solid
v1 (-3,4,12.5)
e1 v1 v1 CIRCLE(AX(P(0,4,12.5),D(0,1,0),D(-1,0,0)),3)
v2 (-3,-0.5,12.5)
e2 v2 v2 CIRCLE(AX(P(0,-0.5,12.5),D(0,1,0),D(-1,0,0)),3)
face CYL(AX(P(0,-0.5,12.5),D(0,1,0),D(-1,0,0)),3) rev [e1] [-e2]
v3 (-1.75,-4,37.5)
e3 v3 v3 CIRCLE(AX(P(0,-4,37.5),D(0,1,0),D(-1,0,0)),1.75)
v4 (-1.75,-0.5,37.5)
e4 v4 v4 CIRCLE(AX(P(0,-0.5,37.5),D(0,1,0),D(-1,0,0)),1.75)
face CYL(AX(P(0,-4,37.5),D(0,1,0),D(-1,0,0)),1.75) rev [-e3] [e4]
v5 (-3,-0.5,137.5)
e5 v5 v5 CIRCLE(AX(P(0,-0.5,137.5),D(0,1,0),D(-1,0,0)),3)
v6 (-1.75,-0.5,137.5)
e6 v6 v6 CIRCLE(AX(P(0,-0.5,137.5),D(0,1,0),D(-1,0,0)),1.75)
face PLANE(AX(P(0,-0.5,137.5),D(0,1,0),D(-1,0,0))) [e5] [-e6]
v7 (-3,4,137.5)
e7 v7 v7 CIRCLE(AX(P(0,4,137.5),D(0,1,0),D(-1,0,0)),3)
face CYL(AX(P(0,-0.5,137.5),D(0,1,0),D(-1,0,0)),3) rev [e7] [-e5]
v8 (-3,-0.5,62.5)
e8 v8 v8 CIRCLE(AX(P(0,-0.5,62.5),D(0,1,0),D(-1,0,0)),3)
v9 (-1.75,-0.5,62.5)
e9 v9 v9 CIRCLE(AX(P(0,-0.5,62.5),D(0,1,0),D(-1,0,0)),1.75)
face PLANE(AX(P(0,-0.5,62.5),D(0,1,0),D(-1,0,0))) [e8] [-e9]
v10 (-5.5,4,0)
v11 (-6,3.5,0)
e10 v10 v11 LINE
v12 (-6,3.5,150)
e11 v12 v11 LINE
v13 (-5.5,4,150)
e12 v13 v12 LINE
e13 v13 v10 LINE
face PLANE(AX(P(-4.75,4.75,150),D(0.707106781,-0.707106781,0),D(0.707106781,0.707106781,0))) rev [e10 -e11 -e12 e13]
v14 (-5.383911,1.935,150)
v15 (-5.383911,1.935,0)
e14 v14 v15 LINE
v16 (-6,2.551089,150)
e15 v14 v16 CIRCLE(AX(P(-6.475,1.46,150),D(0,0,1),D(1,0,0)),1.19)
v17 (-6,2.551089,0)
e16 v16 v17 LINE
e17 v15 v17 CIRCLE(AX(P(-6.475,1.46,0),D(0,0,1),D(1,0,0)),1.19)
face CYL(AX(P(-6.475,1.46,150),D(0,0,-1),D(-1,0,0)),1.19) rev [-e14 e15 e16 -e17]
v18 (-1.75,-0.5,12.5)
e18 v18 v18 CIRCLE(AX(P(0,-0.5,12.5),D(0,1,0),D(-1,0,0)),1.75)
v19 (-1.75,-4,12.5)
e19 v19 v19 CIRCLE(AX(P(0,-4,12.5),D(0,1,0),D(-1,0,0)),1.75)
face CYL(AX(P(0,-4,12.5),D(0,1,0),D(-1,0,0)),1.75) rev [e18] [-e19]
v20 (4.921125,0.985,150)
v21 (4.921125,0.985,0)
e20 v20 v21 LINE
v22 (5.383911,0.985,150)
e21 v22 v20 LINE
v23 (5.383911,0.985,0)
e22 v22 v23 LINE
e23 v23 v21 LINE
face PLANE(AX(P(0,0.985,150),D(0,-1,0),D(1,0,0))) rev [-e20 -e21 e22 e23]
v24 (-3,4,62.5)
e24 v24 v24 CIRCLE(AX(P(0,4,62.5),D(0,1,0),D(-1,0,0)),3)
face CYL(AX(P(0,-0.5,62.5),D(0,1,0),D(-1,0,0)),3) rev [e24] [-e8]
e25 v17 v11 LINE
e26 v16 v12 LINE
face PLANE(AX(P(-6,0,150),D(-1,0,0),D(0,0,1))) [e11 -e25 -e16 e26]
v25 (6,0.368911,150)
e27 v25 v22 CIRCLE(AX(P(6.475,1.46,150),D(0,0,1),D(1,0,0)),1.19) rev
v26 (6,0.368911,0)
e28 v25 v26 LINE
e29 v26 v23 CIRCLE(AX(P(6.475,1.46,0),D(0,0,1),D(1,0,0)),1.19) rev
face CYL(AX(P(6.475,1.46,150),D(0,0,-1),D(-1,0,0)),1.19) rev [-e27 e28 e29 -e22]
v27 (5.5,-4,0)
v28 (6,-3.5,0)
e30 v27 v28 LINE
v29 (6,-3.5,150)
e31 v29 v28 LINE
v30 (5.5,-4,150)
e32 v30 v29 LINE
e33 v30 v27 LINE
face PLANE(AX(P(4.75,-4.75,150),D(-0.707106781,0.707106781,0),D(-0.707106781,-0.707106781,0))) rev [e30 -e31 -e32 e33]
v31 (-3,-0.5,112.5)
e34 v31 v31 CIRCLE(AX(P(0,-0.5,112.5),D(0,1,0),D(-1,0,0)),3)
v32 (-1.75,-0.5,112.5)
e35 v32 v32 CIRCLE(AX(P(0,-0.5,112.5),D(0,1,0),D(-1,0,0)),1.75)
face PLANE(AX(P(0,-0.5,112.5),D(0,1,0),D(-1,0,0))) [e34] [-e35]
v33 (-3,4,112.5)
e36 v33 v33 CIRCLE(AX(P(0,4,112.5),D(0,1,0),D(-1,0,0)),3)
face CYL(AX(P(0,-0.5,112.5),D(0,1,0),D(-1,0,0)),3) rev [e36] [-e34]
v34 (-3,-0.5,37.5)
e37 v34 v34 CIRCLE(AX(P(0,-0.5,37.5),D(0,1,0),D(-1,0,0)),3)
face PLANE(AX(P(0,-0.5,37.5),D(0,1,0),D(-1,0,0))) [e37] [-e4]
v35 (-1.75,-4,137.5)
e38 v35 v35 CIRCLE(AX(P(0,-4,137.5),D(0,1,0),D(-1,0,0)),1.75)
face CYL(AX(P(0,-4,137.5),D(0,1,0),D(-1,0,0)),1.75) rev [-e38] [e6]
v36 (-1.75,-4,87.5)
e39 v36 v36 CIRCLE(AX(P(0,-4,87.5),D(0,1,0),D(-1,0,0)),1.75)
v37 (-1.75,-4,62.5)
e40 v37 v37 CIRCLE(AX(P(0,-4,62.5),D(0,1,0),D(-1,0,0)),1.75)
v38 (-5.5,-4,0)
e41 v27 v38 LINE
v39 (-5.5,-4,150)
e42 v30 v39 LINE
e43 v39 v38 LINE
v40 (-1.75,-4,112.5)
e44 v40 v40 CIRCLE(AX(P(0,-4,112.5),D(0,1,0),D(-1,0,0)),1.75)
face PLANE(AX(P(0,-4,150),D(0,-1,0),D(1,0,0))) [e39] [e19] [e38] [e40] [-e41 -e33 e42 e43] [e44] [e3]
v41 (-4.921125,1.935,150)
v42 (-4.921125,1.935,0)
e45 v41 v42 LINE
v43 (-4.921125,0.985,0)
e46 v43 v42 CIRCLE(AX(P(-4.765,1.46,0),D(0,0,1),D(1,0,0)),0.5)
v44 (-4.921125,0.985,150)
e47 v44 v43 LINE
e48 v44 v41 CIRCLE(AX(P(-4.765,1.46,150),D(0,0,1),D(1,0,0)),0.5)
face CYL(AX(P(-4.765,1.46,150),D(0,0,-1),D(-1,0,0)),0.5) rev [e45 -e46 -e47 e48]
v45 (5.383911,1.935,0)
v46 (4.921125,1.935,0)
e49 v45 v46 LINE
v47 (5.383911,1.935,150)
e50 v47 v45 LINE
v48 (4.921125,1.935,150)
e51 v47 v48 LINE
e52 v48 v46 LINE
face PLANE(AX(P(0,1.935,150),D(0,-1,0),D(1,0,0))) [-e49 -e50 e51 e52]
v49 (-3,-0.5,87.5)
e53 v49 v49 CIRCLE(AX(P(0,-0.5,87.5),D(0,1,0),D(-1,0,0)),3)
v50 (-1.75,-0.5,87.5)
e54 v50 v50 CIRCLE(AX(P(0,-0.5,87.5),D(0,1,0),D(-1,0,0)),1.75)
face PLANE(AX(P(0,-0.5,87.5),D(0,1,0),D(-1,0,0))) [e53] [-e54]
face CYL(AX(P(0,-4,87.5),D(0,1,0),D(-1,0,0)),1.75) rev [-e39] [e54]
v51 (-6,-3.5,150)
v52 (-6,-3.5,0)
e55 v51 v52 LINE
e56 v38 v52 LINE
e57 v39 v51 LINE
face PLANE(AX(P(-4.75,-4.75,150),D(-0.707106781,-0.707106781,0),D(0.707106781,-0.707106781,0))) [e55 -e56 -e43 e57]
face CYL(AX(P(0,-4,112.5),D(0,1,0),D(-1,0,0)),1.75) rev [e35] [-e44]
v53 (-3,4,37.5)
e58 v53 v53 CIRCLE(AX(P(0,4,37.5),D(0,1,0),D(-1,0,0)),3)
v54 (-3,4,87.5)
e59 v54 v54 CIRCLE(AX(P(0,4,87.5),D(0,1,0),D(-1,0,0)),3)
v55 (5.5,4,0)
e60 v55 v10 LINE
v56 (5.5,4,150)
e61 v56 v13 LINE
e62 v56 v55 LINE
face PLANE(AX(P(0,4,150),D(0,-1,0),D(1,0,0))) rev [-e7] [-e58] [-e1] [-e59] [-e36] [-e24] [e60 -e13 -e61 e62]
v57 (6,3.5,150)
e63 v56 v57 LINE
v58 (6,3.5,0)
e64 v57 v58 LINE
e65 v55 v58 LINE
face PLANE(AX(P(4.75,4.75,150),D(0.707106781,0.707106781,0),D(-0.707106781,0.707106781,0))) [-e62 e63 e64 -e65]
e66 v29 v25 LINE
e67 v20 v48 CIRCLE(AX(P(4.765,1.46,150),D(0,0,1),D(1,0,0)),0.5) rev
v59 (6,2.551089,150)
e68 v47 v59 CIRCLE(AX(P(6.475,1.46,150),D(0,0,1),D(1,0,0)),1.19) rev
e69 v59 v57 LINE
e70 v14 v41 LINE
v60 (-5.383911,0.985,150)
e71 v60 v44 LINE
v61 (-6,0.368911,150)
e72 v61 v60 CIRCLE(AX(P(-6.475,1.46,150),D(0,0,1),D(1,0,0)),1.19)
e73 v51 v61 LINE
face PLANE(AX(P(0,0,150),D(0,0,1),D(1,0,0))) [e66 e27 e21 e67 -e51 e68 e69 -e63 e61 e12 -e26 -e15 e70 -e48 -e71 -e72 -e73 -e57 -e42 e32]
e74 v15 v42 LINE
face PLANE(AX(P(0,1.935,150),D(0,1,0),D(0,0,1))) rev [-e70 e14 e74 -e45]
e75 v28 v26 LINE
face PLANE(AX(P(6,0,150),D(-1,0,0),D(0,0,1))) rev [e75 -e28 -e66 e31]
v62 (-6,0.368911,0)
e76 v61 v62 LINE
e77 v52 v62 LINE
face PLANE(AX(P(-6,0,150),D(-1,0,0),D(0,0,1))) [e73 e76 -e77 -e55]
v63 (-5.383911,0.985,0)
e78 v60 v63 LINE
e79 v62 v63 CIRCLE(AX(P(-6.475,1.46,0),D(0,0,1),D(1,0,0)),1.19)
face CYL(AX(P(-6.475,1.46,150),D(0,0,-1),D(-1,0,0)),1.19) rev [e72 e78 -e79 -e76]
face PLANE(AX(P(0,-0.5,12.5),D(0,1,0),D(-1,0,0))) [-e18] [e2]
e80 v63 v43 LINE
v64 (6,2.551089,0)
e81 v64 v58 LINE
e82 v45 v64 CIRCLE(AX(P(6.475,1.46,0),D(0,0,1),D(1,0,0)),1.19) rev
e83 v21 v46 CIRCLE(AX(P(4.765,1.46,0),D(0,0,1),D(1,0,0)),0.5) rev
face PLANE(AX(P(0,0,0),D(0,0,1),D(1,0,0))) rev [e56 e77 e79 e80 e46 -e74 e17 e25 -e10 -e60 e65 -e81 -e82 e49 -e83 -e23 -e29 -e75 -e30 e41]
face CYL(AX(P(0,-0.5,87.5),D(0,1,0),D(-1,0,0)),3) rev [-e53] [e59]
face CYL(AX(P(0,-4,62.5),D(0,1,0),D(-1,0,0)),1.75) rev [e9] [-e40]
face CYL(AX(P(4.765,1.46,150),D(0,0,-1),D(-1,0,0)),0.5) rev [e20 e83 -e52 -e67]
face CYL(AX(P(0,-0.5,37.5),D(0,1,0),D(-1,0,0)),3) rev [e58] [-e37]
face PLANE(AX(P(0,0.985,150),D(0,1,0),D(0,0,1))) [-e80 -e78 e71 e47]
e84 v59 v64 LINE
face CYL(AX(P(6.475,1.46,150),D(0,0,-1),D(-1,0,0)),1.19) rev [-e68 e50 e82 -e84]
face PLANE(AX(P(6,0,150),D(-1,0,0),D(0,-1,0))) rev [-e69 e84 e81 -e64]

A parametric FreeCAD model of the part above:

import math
import FreeCAD as App
import Part
import Sketcher
from FreeCAD import Vector
Q = App.Units.Quantity

doc = App.newDocument("Part")
params = doc.addObject("Spreadsheet::Sheet", "Params")
for row, (alias, value) in enumerate([
    ("sketch1_radius", "0.5 mm"),
    ("sketch1_width", "11 mm"),
    ("sketch1_radius2", "1.19 mm"),
    ("pad1_length", "150 mm"),
    ("sketch2_diameter", "6 mm"),
    ("pocket1_length", "4.5 mm"),
    ("sketch3_diameter", "3.5 mm"),
    ("linearpattern_pitch", "25 mm"),
], start=1):
    params.set(f"A{row}", alias)
    params.set(f"B{row}", "=" + value)
    params.setAlias(f"B{row}", alias)

body = doc.addObject("PartDesign::Body", "Body")

# Sketch on XY plane
sketch1 = doc.addObject("Sketcher::SketchObject", "Sketch")
body.addObject(sketch1)
sketch1.AttachmentSupport = (doc.XY_Plane, [""])
sketch1.MapMode = "FlatFace"
sketch1.addGeometry(Part.LineSegment(Vector(6, -3.5, 0), Vector(6, 0.368911, 0)), False)
sketch1.addGeometry(Part.ArcOfCircle(Part.Circle(Vector(6.475, 1.46, 0), Vector(0, 0, 1), 1.19), math.radians(-156.474345), math.radians(-113.525655)), False)
sketch1.addGeometry(Part.LineSegment(Vector(5.383911, 0.985, 0), Vector(4.921125, 0.985, 0)), False)
sketch1.addGeometry(Part.ArcOfCircle(Part.Circle(Vector(4.765, 1.46, 0), Vector(0, 0, 1), 0.5), math.radians(71.805128), math.radians(288.194872)), False)
sketch1.addGeometry(Part.LineSegment(Vector(4.921125, 1.935, 0), Vector(5.383911, 1.935, 0)), False)
sketch1.addGeometry(Part.ArcOfCircle(Part.Circle(Vector(6.475, 1.46, 0), Vector(0, 0, 1), 1.19), math.radians(113.525655), math.radians(156.474345)), False)
sketch1.addGeometry(Part.LineSegment(Vector(6, 2.551089, 0), Vector(6, 3.5, 0)), False)
sketch1.addGeometry(Part.LineSegment(Vector(6, 3.5, 0), Vector(5.5, 4, 0)), False)
sketch1.addGeometry(Part.LineSegment(Vector(5.5, 4, 0), Vector(-5.5, 4, 0)), False)
sketch1.addGeometry(Part.LineSegment(Vector(-5.5, 4, 0), Vector(-6, 3.5, 0)), False)
sketch1.addGeometry(Part.LineSegment(Vector(-6, 3.5, 0), Vector(-6, 2.551089, 0)), False)
sketch1.addGeometry(Part.ArcOfCircle(Part.Circle(Vector(-6.475, 1.46, 0), Vector(0, 0, 1), 1.19), math.radians(23.525655), math.radians(66.474345)), False)
sketch1.addGeometry(Part.LineSegment(Vector(-5.383911, 1.935, 0), Vector(-4.921125, 1.935, 0)), False)
sketch1.addGeometry(Part.ArcOfCircle(Part.Circle(Vector(-4.765, 1.46, 0), Vector(0, 0, 1), 0.5), math.radians(-108.194872), math.radians(108.194872)), False)
sketch1.addGeometry(Part.LineSegment(Vector(-4.921125, 0.985, 0), Vector(-5.383911, 0.985, 0)), False)
sketch1.addGeometry(Part.ArcOfCircle(Part.Circle(Vector(-6.475, 1.46, 0), Vector(0, 0, 1), 1.19), math.radians(-66.474345), math.radians(-23.525655)), False)
sketch1.addGeometry(Part.LineSegment(Vector(-6, 0.368911, 0), Vector(-6, -3.5, 0)), False)
sketch1.addGeometry(Part.LineSegment(Vector(-6, -3.5, 0), Vector(-5.5, -4, 0)), False)
sketch1.addGeometry(Part.LineSegment(Vector(-5.5, -4, 0), Vector(5.5, -4, 0)), False)
sketch1.addGeometry(Part.LineSegment(Vector(5.5, -4, 0), Vector(6, -3.5, 0)), False)
sketch1.addConstraint(Sketcher.Constraint("Coincident", 0, 2, 1, 2))
sketch1.addConstraint(Sketcher.Constraint("Coincident", 1, 1, 2, 1))
sketch1.addConstraint(Sketcher.Constraint("Coincident", 2, 2, 3, 2))
sketch1.addConstraint(Sketcher.Constraint("Coincident", 3, 1, 4, 1))
sketch1.addConstraint(Sketcher.Constraint("Coincident", 4, 2, 5, 2))
sketch1.addConstraint(Sketcher.Constraint("Coincident", 5, 1, 6, 1))
sketch1.addConstraint(Sketcher.Constraint("Coincident", 6, 2, 7, 1))
sketch1.addConstraint(Sketcher.Constraint("Coincident", 7, 2, 8, 1))
sketch1.addConstraint(Sketcher.Constraint("Coincident", 8, 2, 9, 1))
sketch1.addConstraint(Sketcher.Constraint("Coincident", 9, 2, 10, 1))
sketch1.addConstraint(Sketcher.Constraint("Coincident", 10, 2, 11, 2))
sketch1.addConstraint(Sketcher.Constraint("Coincident", 11, 1, 12, 1))
sketch1.addConstraint(Sketcher.Constraint("Coincident", 12, 2, 13, 2))
sketch1.addConstraint(Sketcher.Constraint("Coincident", 13, 1, 14, 1))
sketch1.addConstraint(Sketcher.Constraint("Coincident", 14, 2, 15, 2))
sketch1.addConstraint(Sketcher.Constraint("Coincident", 15, 1, 16, 1))
sketch1.addConstraint(Sketcher.Constraint("Coincident", 16, 2, 17, 1))
sketch1.addConstraint(Sketcher.Constraint("Coincident", 17, 2, 18, 1))
sketch1.addConstraint(Sketcher.Constraint("Coincident", 18, 2, 19, 1))
sketch1.addConstraint(Sketcher.Constraint("Coincident", 19, 2, 0, 1))
sketch1.addConstraint(Sketcher.Constraint("Vertical", 0))
sketch1.addConstraint(Sketcher.Constraint("Horizontal", 2))
sketch1.addConstraint(Sketcher.Constraint("Horizontal", 4))
sketch1.addConstraint(Sketcher.Constraint("Vertical", 6))
sketch1.addConstraint(Sketcher.Constraint("Horizontal", 8))
sketch1.addConstraint(Sketcher.Constraint("Vertical", 10))
sketch1.addConstraint(Sketcher.Constraint("Horizontal", 12))
sketch1.addConstraint(Sketcher.Constraint("Horizontal", 14))
sketch1.addConstraint(Sketcher.Constraint("Vertical", 16))
sketch1.addConstraint(Sketcher.Constraint("Horizontal", 18))
sketch1.addConstraint(Sketcher.Constraint("Coincident", 5, 3, 1, 3))
sketch1.addConstraint(Sketcher.Constraint("Coincident", 15, 3, 11, 3))
sketch1.addConstraint(Sketcher.Constraint("Equal", 1, 5))
sketch1.addConstraint(Sketcher.Constraint("Equal", 5, 11))
sketch1.addConstraint(Sketcher.Constraint("Equal", 3, 13))
sketch1.addConstraint(Sketcher.Constraint("Equal", 11, 15))
sketch1.addConstraint(Sketcher.Constraint("Symmetric", 6, 2, 16, 2, -1, 1))
sketch1.addConstraint(Sketcher.Constraint("Symmetric", 7, 2, 17, 2, -1, 1))
sketch1.addConstraint(Sketcher.Constraint("Symmetric", 9, 2, 19, 2, -1, 1))
sketch1.addConstraint(Sketcher.Constraint("Symmetric", 1, 3, 11, 3, -2))
sketch1.addConstraint(Sketcher.Constraint("Symmetric", 3, 3, 13, 3, -2))
sketch1.addConstraint(Sketcher.Constraint("Symmetric", 6, 2, 9, 2, -2))
sketch1.addConstraint(Sketcher.Constraint("Perpendicular", 7, 9))
sketch1.addConstraint(Sketcher.Constraint("Perpendicular", 17, 19))
sketch1.addConstraint(Sketcher.Constraint("Horizontal", 1, 3, 3, 3))
sketch1.addConstraint(Sketcher.Constraint("Horizontal", 4, 2, 11, 1))
sketch1.addConstraint(Sketcher.Constraint("Horizontal", 2, 2, 13, 1))
sketch1.addConstraint(Sketcher.Constraint("Vertical", 2, 2, 3, 1))
sketch1.addConstraint(Sketcher.Constraint("Vertical", 8, 2, 17, 2))
sketch1.addConstraint(Sketcher.Constraint("Radius", 3, Q("0.5 mm")))
sketch1.addConstraint(Sketcher.Constraint("DistanceX", 8, 2, 8, 1, Q("11 mm")))
sketch1.addConstraint(Sketcher.Constraint("Radius", 1, Q("1.19 mm")))
sketch1.addConstraint(Sketcher.Constraint("DistanceX", -1, 1, 0, 2, Q("6 mm")))
sketch1.addConstraint(Sketcher.Constraint("DistanceY", -1, 1, 7, 2, Q("4 mm")))
sketch1.addConstraint(Sketcher.Constraint("DistanceY", -1, 1, 1, 3, Q("1.46 mm")))
sketch1.addConstraint(Sketcher.Constraint("DistanceX", 3, 3, 1, 3, Q("1.71 mm")))
sketch1.addConstraint(Sketcher.Constraint("DistanceX", 11, 3, 3, 3, Q("11.24 mm")))
sketch1.addConstraint(Sketcher.Constraint("DistanceY", 2, 2, 3, 1, Q("0.95 mm")))
sketch1.setExpression("Constraints[49]", "Params.sketch1_radius")
sketch1.setExpression("Constraints[50]", "Params.sketch1_width")
sketch1.setExpression("Constraints[51]", "Params.sketch1_radius2")
pad1 = doc.addObject("PartDesign::Pad", "Pad")
body.addObject(pad1)
pad1.Profile = sketch1
pad1.setExpression("Length", "Params.pad1_length")

# Sketch on XZ plane
sketch2 = doc.addObject("Sketcher::SketchObject", "Sketch001")
body.addObject(sketch2)
sketch2.AttachmentSupport = (doc.XZ_Plane, [""])
sketch2.MapMode = "FlatFace"
sketch2.AttachmentOffset = App.Placement(Vector(0, 0, -4), App.Rotation())
sketch2.addGeometry(Part.Circle(Vector(0, 12.5, 0), Vector(0, 0, 1), 3), False)
sketch2.addConstraint(Sketcher.Constraint("PointOnObject", 0, 3, -2))
sketch2.addConstraint(Sketcher.Constraint("Diameter", 0, Q("6 mm")))
sketch2.addConstraint(Sketcher.Constraint("DistanceY", -1, 1, 0, 3, Q("12.5 mm")))
sketch2.setExpression("Constraints[1]", "Params.sketch2_diameter")
pocket1 = doc.addObject("PartDesign::Pocket", "Pocket")
body.addObject(pocket1)
pocket1.Profile = sketch2
pocket1.setExpression("Length", "Params.pocket1_length")
pocket1.Reversed = True

# Sketch on XZ plane
sketch3 = doc.addObject("Sketcher::SketchObject", "Sketch002")
body.addObject(sketch3)
sketch3.AttachmentSupport = (doc.XZ_Plane, [""])
sketch3.MapMode = "FlatFace"
sketch3.AttachmentOffset = App.Placement(Vector(0, 0, 0.5), App.Rotation())
sketch3.addGeometry(Part.Circle(Vector(0, 12.5, 0), Vector(0, 0, 1), 1.75), False)
sketch3.addConstraint(Sketcher.Constraint("PointOnObject", 0, 3, -2))
sketch3.addConstraint(Sketcher.Constraint("Diameter", 0, Q("3.5 mm")))
sketch3.addConstraint(Sketcher.Constraint("DistanceY", -1, 1, 0, 3, Q("12.5 mm")))
sketch3.setExpression("Constraints[1]", "Params.sketch3_diameter")
pocket2 = doc.addObject("PartDesign::Pocket", "Pocket001")
body.addObject(pocket2)
pocket2.Profile = sketch3
pocket2.Type = "ThroughAll"
pocket2.Reversed = True
doc.recompute()

linearpattern = doc.addObject("PartDesign::LinearPattern", "LinearPattern")
body.addObject(linearpattern)
linearpattern.Originals = [pocket1, pocket2]
linearpattern.Direction = (doc.Z_Axis, [""])
linearpattern.Mode = "offset"
linearpattern.setExpression("Offset", "Params.linearpattern_pitch")
linearpattern.Occurrences = 6
body.Tip = linearpattern

doc.recompute()
